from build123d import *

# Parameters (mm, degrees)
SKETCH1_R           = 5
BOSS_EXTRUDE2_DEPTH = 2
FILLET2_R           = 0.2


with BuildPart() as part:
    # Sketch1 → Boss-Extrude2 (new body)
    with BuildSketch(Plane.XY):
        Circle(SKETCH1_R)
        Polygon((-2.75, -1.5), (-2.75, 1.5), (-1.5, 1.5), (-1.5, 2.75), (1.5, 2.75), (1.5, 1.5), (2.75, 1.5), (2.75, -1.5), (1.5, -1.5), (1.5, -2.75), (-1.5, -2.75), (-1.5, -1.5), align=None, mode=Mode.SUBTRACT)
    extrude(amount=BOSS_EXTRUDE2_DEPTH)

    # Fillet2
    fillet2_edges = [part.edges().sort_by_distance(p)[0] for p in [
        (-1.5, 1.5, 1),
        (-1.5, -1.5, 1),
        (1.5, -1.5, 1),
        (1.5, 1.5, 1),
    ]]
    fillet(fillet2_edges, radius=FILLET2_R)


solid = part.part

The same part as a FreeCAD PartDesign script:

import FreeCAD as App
import Part
import Sketcher
Q = App.Units.Quantity


def edges_at(feature, points):
    """Names of the edges that pass closest to the given points."""
    edges = feature.Shape.Edges
    near = lambda p: min(range(len(edges)), key=lambda i: edges[i].distToShape(Part.Vertex(*p))[0])
    return sorted({f"Edge{near(p) + 1}" for p in points})


def add_polygon(sketch, points):
    """Adds a closed chain of lines whose ends are joined by coincident constraints."""
    first, n = sketch.GeometryCount, len(points)
    for a, b in zip(points, points[1:] + points[:1]):
        sketch.addGeometry(Part.LineSegment(App.Vector(*a, 0), App.Vector(*b, 0)), False)
    for i in range(n):
        sketch.addConstraint(Sketcher.Constraint("Coincident", first + i, 2, first + (i + 1) % n, 1))

doc = App.newDocument("Part")
body = doc.addObject("PartDesign::Body", "Body")

sketch1 = body.newObject("Sketcher::SketchObject", "Sketch")
sketch1.AttachmentSupport = (doc.getObject("XY_Plane"), [""])
sketch1.MapMode = "FlatFace"
sketch1.addGeometry(Part.Circle(App.Vector(0, 0, 0), App.Vector(0, 0, 1), 5), False)
add_polygon(sketch1, [(-1.5, -1.5), (-2.8, -1.5), (-2.8, 1.5), (-1.5, 1.5), (-1.5, 2.8), (1.5, 2.8), (1.5, 1.5), (2.8, 1.5), (2.8, -1.5), (1.5, -1.5), (1.5, -2.8), (-1.5, -2.8)])
sketch1.addConstraint([
    Sketcher.Constraint("Horizontal", 1),
    Sketcher.Constraint("Vertical", 2),
    Sketcher.Constraint("Horizontal", 3),
    Sketcher.Constraint("Vertical", 4),
    Sketcher.Constraint("Horizontal", 5),
    Sketcher.Constraint("Vertical", 6),
    Sketcher.Constraint("Horizontal", 7),
    Sketcher.Constraint("Vertical", 8),
    Sketcher.Constraint("Horizontal", 9),
    Sketcher.Constraint("Vertical", 10),
    Sketcher.Constraint("Horizontal", 11),
    Sketcher.Constraint("Vertical", 12),
    Sketcher.Constraint("Coincident", 0, 3, -1, 1),
    Sketcher.Constraint("Symmetric", 1, 2, 7, 2, -1, 1),
    Sketcher.Constraint("Symmetric", 3, 2, 9, 2, -1, 1),
    Sketcher.Constraint("Symmetric", 5, 2, 11, 2, -1, 1),
    Sketcher.Constraint("Symmetric", 3, 2, 6, 2, -2),
    Sketcher.Constraint("Equal", 11, 2),
    Sketcher.Constraint("Equal", 9, 4),
    Sketcher.Constraint("Diameter", 0, Q("10 mm")),
    Sketcher.Constraint("DistanceX", 5, 1, 5, 2, Q("3 mm")),
    Sketcher.Constraint("DistanceX", 1, 2, 1, 1, Q("1.25 mm")),
])
pad1 = body.newObject("PartDesign::Pad", "Pad")
pad1.Profile = sketch1
pad1.Length = 2
doc.recompute()

fillet = body.newObject("PartDesign::Fillet", "Fillet")
fillet.Base = (pad1, edges_at(pad1, [
    (-1.5, 1.5, 1),
    (-1.5, -1.5, 1),
    (1.5, -1.5, 1),
    (1.5, 1.5, 1),
]))
fillet.Radius = 0.2

doc.recompute()
